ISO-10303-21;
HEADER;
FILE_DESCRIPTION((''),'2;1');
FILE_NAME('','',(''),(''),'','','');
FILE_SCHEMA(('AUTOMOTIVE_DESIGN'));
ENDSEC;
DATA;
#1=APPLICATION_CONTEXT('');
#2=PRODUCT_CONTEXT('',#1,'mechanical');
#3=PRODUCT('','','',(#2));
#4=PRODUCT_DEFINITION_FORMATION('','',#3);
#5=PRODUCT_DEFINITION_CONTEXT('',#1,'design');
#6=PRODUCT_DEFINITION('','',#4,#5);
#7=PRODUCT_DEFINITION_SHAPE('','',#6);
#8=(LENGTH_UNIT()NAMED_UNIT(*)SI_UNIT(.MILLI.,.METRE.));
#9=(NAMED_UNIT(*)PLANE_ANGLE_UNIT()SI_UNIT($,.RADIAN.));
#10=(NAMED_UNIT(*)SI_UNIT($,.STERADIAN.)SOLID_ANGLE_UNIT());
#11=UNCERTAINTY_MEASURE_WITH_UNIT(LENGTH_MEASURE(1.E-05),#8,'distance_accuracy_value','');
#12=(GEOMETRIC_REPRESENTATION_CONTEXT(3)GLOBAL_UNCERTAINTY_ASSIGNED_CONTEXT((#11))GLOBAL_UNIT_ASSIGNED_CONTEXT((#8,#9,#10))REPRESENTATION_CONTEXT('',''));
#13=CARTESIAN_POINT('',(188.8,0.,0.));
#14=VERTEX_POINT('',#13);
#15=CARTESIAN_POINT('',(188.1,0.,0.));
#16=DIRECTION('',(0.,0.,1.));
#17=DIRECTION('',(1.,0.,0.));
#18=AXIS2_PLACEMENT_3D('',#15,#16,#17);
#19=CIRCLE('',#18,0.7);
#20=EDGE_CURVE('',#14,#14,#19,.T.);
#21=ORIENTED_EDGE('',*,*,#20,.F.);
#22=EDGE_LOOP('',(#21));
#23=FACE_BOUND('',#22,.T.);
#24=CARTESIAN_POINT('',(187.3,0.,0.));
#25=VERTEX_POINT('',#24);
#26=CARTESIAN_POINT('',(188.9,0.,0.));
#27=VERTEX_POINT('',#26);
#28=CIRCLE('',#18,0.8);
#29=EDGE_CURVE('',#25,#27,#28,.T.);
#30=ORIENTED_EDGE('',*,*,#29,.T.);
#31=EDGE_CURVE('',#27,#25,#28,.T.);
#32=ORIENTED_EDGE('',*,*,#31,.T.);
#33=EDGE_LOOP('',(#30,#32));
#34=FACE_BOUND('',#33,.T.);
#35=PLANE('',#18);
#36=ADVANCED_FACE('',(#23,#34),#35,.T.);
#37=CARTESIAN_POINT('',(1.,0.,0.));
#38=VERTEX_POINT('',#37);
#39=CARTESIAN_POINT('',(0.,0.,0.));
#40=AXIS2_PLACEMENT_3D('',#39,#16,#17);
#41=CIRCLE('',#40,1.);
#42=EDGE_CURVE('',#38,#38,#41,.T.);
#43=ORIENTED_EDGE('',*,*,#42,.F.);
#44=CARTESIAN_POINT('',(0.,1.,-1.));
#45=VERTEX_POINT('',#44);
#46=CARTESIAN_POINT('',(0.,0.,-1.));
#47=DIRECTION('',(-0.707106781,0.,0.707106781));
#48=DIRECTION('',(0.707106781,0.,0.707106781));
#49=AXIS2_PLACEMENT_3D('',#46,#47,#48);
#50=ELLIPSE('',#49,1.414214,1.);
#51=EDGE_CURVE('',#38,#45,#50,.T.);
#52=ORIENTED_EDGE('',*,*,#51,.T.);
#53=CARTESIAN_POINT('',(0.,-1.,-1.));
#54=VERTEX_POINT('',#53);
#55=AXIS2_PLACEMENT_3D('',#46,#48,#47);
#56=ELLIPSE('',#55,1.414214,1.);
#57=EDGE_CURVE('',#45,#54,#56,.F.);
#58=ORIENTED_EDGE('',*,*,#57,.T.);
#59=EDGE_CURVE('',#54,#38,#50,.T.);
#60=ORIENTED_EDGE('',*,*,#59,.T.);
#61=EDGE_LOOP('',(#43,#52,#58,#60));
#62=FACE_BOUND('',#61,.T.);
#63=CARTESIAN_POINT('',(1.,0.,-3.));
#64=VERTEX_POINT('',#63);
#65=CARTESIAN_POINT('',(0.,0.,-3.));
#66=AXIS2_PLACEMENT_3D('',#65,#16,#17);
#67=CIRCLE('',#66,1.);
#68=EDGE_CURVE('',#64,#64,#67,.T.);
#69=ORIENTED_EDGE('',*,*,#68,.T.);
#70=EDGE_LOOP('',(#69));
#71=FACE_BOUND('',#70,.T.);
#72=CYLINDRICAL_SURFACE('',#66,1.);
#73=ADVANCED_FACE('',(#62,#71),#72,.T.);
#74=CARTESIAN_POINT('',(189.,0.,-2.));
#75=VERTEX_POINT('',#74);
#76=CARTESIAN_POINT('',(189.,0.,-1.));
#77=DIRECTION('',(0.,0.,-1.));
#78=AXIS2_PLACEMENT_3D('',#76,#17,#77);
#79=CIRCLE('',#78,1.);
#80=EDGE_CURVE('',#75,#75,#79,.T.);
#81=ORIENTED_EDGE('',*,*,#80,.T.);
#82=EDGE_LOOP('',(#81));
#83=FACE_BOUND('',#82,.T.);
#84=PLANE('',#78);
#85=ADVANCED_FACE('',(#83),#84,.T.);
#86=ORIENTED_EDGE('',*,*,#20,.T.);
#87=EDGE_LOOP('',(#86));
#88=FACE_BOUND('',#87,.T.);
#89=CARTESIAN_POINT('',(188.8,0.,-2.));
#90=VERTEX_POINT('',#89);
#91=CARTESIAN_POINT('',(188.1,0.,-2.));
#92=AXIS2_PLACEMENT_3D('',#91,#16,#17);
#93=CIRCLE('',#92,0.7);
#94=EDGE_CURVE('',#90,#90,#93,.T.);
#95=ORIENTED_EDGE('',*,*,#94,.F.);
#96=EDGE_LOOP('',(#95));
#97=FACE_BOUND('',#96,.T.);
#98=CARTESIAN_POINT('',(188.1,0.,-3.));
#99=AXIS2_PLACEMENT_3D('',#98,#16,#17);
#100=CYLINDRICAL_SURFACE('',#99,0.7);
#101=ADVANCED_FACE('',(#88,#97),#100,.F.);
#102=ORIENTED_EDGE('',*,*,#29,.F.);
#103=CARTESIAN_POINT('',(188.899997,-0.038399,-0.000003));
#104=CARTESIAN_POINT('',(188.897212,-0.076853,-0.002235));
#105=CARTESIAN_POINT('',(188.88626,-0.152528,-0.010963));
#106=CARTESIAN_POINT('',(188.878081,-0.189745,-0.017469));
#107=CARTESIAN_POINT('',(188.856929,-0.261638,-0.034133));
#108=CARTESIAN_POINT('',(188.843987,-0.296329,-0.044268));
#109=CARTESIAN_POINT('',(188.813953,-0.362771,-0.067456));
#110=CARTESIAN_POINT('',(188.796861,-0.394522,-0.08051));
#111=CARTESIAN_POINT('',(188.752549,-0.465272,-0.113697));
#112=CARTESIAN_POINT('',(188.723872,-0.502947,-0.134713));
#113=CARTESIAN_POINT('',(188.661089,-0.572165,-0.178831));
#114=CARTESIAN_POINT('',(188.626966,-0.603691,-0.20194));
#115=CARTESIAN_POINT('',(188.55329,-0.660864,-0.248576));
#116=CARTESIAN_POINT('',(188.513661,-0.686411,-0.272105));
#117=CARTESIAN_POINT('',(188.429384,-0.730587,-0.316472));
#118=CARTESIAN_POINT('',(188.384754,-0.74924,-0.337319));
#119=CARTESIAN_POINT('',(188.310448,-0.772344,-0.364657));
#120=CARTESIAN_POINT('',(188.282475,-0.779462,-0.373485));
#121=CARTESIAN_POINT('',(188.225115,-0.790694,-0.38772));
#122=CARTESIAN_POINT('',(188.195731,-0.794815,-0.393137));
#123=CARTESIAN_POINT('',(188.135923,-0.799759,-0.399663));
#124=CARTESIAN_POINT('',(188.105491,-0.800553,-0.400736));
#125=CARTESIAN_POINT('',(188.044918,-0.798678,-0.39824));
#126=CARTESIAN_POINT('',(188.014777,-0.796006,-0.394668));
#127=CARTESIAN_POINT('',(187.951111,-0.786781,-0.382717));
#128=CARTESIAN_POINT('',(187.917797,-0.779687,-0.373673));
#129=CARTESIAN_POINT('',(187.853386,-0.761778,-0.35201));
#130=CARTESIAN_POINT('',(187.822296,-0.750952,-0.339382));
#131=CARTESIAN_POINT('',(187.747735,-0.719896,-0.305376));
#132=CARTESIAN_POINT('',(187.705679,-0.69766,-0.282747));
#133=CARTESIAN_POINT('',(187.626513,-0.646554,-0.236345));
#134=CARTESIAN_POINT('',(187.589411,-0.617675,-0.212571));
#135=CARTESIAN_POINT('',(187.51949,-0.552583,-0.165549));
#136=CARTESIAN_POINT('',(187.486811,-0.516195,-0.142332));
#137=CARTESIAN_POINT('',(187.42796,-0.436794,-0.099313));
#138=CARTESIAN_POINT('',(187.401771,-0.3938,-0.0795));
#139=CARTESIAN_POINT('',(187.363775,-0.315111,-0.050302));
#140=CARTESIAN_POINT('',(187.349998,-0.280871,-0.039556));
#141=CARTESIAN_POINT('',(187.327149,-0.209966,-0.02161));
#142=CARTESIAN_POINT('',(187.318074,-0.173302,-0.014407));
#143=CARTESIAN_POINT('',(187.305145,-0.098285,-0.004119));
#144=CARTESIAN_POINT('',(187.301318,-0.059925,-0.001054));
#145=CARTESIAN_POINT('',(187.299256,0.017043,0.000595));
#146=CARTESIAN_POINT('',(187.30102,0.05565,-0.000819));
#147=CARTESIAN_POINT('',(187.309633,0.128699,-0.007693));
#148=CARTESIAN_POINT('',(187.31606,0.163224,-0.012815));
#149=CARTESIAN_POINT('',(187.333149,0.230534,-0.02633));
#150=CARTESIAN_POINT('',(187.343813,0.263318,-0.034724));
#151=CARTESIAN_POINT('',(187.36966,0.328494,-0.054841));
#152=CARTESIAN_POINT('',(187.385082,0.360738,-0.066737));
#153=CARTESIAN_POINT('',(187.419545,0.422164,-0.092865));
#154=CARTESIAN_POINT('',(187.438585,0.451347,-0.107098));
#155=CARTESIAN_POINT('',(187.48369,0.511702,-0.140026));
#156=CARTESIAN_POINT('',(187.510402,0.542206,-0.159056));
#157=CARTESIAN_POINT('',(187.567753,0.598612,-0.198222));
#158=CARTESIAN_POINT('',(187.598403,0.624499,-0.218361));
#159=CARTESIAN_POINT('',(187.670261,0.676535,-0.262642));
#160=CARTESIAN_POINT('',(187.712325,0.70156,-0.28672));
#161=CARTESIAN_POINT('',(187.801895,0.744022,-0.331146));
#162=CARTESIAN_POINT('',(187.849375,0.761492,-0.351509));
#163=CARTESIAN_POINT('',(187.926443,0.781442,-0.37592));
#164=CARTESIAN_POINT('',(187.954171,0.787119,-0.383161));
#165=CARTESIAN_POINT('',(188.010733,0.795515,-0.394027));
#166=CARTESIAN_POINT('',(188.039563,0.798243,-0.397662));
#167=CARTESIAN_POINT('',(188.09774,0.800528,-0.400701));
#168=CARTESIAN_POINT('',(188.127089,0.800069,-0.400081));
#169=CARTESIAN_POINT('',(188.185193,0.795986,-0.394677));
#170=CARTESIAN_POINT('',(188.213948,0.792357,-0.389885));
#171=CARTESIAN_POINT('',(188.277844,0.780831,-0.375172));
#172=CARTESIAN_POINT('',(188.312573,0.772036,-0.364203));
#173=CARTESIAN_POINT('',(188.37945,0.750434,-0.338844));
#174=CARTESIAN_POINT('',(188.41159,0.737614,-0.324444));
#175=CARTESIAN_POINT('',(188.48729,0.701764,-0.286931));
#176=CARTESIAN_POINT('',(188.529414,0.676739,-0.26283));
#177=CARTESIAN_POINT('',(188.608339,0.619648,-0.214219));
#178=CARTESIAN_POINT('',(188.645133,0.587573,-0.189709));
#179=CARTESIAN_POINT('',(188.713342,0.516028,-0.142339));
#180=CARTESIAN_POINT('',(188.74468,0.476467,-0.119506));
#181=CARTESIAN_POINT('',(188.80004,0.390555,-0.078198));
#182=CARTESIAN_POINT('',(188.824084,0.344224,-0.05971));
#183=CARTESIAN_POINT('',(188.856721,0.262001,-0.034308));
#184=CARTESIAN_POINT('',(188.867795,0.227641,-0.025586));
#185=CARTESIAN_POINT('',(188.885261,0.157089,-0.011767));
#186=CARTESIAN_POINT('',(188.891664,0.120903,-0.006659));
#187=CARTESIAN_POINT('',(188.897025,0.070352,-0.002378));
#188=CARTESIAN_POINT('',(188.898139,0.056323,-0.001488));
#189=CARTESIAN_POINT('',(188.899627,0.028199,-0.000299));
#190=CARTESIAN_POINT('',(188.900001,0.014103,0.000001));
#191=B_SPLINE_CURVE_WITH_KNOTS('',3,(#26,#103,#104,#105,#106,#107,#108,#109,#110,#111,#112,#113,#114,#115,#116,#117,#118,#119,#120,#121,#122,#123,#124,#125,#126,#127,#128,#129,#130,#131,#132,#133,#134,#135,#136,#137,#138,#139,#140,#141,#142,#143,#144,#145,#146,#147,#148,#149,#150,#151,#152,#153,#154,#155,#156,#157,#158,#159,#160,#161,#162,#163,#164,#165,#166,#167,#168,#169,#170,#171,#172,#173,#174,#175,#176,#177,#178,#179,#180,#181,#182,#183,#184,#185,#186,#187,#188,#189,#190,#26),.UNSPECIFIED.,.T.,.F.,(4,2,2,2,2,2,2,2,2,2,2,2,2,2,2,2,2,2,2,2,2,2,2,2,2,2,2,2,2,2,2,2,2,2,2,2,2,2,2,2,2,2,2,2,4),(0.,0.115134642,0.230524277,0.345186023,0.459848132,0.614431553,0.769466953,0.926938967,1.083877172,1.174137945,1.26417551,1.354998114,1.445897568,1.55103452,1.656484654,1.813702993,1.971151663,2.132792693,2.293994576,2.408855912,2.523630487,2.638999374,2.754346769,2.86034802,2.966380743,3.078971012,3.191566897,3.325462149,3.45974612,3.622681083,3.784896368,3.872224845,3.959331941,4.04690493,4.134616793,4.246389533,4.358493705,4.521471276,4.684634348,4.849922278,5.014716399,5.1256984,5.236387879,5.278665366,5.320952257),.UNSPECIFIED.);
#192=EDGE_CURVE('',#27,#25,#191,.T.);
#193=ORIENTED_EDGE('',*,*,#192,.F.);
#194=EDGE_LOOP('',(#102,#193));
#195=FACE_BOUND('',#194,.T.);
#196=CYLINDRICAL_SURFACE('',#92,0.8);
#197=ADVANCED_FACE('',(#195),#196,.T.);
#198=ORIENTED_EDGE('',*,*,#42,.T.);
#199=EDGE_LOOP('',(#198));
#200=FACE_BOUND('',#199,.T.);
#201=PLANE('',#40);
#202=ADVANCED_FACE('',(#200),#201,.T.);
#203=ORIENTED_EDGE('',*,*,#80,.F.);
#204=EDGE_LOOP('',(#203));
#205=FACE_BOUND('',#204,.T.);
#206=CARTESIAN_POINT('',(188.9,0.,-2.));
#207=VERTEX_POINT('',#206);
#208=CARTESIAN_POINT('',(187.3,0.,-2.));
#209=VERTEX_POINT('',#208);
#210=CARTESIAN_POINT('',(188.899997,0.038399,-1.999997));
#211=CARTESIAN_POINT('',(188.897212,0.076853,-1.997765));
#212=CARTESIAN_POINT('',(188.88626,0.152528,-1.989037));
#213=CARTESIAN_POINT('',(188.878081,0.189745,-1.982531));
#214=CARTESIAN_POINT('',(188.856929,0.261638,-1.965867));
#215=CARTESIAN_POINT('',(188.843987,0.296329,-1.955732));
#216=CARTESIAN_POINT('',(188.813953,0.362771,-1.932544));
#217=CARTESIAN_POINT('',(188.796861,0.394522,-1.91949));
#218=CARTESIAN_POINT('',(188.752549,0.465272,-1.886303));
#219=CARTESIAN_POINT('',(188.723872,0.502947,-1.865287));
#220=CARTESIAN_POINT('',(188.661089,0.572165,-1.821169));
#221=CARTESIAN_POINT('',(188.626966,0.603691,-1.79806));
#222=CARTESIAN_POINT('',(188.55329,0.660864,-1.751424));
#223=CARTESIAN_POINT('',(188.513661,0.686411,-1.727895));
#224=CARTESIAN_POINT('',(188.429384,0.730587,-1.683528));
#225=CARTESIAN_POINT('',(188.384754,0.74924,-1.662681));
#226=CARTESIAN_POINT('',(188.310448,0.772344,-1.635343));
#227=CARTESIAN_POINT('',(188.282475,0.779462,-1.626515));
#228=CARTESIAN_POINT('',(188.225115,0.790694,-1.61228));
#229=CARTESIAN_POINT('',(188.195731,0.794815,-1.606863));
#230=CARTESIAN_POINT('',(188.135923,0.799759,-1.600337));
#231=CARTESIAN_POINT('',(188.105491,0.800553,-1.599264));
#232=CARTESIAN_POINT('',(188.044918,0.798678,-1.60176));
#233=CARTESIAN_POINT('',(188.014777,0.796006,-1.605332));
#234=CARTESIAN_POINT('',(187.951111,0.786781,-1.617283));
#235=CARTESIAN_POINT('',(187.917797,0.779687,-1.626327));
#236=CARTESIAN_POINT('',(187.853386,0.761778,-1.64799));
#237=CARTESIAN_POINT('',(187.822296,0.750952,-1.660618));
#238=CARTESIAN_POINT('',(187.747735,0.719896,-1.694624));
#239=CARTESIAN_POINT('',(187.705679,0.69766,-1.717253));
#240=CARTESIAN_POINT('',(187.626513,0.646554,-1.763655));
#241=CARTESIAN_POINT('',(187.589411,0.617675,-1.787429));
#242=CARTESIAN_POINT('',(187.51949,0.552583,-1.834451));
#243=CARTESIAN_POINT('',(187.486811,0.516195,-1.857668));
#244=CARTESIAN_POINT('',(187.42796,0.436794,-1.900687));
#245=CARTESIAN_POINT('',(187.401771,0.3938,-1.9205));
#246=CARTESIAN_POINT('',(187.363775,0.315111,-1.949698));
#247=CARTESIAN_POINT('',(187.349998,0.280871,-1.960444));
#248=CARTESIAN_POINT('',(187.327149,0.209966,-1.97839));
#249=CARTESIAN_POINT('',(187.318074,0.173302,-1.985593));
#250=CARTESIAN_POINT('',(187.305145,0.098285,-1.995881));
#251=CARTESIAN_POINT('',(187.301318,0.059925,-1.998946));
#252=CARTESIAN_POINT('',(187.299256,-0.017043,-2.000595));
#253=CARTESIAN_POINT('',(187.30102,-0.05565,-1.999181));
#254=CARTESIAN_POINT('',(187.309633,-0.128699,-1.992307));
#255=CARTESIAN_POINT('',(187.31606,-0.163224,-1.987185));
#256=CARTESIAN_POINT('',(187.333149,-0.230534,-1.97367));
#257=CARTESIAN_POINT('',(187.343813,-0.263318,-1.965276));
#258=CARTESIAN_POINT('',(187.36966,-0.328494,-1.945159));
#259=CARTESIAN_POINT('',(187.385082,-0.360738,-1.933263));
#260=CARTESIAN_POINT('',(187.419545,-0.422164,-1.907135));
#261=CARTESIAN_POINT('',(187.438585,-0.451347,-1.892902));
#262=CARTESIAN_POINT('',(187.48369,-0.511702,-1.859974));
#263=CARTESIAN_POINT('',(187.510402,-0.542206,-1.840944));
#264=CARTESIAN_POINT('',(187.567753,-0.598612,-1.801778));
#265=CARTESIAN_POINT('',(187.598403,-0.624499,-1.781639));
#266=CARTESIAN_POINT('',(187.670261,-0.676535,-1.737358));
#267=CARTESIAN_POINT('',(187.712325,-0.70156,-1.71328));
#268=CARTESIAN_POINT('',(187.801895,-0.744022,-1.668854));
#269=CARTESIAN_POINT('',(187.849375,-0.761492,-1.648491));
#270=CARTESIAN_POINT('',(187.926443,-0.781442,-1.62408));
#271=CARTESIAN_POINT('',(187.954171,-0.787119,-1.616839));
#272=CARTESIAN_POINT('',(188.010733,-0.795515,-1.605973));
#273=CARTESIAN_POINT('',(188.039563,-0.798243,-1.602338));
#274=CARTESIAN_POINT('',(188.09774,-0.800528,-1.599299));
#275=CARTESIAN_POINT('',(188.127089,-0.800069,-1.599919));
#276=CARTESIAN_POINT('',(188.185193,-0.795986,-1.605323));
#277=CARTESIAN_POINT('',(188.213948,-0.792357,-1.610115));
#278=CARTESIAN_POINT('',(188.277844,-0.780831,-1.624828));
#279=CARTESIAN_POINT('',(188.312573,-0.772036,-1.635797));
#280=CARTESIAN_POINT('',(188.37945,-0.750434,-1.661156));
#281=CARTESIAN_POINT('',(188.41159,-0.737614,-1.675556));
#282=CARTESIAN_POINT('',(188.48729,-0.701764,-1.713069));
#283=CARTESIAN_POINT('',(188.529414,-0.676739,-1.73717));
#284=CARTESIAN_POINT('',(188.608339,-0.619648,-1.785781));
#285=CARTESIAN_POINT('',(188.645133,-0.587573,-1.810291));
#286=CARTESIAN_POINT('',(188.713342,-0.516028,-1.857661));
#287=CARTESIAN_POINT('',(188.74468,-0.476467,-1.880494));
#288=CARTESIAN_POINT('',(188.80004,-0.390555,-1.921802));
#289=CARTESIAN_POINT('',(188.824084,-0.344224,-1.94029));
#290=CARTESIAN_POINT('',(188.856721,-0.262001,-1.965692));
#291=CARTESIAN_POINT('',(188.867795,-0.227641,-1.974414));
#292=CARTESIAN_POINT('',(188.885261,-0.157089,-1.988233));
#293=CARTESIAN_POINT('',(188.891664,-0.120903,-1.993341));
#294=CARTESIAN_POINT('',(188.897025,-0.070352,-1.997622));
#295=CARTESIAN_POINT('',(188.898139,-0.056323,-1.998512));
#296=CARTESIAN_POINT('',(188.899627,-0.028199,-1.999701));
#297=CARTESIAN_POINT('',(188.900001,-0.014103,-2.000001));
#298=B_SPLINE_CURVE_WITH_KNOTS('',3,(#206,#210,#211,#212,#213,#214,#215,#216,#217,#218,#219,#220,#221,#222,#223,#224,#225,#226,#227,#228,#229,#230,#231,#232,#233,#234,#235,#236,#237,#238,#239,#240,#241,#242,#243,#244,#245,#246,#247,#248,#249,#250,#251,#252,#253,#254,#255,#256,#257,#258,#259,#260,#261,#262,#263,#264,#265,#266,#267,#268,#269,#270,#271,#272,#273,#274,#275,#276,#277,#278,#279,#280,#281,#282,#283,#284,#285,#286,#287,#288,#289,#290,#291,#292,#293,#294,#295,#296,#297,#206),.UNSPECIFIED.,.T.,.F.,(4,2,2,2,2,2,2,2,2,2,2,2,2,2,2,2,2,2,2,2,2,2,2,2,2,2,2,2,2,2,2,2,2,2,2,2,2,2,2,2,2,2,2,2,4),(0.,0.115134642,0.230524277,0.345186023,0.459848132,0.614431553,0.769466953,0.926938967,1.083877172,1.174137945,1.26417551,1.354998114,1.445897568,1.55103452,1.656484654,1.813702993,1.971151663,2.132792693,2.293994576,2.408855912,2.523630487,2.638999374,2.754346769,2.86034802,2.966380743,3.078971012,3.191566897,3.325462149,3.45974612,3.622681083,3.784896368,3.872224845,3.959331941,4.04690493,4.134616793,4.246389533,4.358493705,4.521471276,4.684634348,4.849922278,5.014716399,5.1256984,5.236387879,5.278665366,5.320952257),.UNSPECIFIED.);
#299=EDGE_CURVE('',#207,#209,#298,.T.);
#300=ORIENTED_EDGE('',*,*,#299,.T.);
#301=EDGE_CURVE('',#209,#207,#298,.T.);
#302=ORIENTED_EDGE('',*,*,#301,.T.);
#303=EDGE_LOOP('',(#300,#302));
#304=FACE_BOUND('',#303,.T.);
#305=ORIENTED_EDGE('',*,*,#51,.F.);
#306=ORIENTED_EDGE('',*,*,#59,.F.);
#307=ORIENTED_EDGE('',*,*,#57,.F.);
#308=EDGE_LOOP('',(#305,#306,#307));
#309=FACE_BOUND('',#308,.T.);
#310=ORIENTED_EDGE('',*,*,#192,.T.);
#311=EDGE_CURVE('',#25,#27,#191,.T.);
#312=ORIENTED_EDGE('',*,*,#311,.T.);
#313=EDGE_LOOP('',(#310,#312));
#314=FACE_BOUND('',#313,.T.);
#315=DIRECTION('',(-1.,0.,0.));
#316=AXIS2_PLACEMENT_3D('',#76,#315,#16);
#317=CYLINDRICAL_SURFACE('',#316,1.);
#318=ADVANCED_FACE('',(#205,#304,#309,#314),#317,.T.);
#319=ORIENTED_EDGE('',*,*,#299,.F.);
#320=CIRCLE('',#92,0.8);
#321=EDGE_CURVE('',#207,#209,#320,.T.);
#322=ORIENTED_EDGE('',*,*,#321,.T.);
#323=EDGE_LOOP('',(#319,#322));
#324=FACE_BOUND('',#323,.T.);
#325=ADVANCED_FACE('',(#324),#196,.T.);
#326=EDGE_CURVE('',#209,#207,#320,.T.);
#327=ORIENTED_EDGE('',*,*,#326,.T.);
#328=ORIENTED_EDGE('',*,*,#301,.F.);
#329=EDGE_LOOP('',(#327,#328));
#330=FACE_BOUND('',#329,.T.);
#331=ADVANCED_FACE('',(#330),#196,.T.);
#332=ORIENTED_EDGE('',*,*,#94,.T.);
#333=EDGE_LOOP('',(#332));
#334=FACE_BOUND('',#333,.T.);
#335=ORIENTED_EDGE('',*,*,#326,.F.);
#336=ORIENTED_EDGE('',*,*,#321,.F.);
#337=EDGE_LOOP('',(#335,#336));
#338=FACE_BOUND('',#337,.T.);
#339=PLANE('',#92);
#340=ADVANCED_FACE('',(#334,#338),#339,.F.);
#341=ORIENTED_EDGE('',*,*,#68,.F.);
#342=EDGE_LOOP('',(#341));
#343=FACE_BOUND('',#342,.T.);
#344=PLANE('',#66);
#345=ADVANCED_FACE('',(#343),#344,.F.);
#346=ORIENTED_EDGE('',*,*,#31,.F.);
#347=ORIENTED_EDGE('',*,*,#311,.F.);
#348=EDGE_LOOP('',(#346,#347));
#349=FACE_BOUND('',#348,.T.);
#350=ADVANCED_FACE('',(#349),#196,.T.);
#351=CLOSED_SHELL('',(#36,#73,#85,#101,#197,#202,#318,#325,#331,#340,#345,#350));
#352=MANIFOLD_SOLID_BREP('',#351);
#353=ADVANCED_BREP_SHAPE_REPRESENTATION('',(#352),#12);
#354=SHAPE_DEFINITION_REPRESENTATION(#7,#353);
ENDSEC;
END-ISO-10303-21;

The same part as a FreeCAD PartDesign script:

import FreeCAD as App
import Part
import Sketcher
from FreeCAD import Vector
Q = App.Units.Quantity

doc = App.newDocument("Part")
body = doc.addObject("PartDesign::Body", "Body")

# Sketch on XY plane
sketch1 = doc.addObject("Sketcher::SketchObject", "Sketch")
body.addObject(sketch1)
sketch1.AttachmentSupport = (doc.XY_Plane, [""])
sketch1.MapMode = "FlatFace"
sketch1.addGeometry(Part.Circle(Vector(0, 0, 0), Vector(0, 0, 1), 1), False)
sketch1.addConstraint([
    Sketcher.Constraint("Coincident", 0, 3, -1, 1),
    Sketcher.Constraint("Diameter", 0, Q("2 mm")),
])
pad1 = doc.addObject("PartDesign::Pad", "Pad")
body.addObject(pad1)
pad1.Profile = sketch1
pad1.Length = 3
pad1.Reversed = True

# Sketch on YZ plane
sketch2 = doc.addObject("Sketcher::SketchObject", "Sketch001")
body.addObject(sketch2)
sketch2.AttachmentSupport = (doc.YZ_Plane, [""])
sketch2.MapMode = "FlatFace"
sketch2.addGeometry(Part.Circle(Vector(0, -1, 0), Vector(0, 0, 1), 1), False)
sketch2.addConstraint([
    Sketcher.Constraint("PointOnObject", 0, 3, -2),
    Sketcher.Constraint("Diameter", 0, Q("2 mm")),
    Sketcher.Constraint("DistanceY", 0, 3, -1, 1, Q("1 mm")),
])
pad2 = doc.addObject("PartDesign::Pad", "Pad001")
body.addObject(pad2)
pad2.Profile = sketch2
pad2.Length = 189

# Sketch on XY plane
sketch3 = doc.addObject("Sketcher::SketchObject", "Sketch002")
body.addObject(sketch3)
sketch3.AttachmentSupport = (doc.XY_Plane, [""])
sketch3.MapMode = "FlatFace"
sketch3.addGeometry(Part.Circle(Vector(188.1, 0, 0), Vector(0, 0, 1), 0.8), False)
sketch3.addConstraint([
    Sketcher.Constraint("PointOnObject", 0, 3, -1),
    Sketcher.Constraint("Diameter", 0, Q("1.6 mm")),
    Sketcher.Constraint("DistanceX", -1, 1, 0, 3, Q("188.1 mm")),
])
pad3 = doc.addObject("PartDesign::Pad", "Pad002")
body.addObject(pad3)
pad3.Profile = sketch3
pad3.Length = 2
pad3.Reversed = True

# Sketch on XY plane
sketch4 = doc.addObject("Sketcher::SketchObject", "Sketch003")
body.addObject(sketch4)
sketch4.AttachmentSupport = (doc.XY_Plane, [""])
sketch4.MapMode = "FlatFace"
sketch4.addGeometry(Part.Circle(Vector(188.1, 0, 0), Vector(0, 0, 1), 0.7), False)
sketch4.addConstraint([
    Sketcher.Constraint("PointOnObject", 0, 3, -1),
    Sketcher.Constraint("Diameter", 0, Q("1.4 mm")),
    Sketcher.Constraint("DistanceX", -1, 1, 0, 3, Q("188.1 mm")),
])
pocket1 = doc.addObject("PartDesign::Pocket", "Pocket")
body.addObject(pocket1)
pocket1.Profile = sketch4
pocket1.Type = "ThroughAll"

doc.recompute()
